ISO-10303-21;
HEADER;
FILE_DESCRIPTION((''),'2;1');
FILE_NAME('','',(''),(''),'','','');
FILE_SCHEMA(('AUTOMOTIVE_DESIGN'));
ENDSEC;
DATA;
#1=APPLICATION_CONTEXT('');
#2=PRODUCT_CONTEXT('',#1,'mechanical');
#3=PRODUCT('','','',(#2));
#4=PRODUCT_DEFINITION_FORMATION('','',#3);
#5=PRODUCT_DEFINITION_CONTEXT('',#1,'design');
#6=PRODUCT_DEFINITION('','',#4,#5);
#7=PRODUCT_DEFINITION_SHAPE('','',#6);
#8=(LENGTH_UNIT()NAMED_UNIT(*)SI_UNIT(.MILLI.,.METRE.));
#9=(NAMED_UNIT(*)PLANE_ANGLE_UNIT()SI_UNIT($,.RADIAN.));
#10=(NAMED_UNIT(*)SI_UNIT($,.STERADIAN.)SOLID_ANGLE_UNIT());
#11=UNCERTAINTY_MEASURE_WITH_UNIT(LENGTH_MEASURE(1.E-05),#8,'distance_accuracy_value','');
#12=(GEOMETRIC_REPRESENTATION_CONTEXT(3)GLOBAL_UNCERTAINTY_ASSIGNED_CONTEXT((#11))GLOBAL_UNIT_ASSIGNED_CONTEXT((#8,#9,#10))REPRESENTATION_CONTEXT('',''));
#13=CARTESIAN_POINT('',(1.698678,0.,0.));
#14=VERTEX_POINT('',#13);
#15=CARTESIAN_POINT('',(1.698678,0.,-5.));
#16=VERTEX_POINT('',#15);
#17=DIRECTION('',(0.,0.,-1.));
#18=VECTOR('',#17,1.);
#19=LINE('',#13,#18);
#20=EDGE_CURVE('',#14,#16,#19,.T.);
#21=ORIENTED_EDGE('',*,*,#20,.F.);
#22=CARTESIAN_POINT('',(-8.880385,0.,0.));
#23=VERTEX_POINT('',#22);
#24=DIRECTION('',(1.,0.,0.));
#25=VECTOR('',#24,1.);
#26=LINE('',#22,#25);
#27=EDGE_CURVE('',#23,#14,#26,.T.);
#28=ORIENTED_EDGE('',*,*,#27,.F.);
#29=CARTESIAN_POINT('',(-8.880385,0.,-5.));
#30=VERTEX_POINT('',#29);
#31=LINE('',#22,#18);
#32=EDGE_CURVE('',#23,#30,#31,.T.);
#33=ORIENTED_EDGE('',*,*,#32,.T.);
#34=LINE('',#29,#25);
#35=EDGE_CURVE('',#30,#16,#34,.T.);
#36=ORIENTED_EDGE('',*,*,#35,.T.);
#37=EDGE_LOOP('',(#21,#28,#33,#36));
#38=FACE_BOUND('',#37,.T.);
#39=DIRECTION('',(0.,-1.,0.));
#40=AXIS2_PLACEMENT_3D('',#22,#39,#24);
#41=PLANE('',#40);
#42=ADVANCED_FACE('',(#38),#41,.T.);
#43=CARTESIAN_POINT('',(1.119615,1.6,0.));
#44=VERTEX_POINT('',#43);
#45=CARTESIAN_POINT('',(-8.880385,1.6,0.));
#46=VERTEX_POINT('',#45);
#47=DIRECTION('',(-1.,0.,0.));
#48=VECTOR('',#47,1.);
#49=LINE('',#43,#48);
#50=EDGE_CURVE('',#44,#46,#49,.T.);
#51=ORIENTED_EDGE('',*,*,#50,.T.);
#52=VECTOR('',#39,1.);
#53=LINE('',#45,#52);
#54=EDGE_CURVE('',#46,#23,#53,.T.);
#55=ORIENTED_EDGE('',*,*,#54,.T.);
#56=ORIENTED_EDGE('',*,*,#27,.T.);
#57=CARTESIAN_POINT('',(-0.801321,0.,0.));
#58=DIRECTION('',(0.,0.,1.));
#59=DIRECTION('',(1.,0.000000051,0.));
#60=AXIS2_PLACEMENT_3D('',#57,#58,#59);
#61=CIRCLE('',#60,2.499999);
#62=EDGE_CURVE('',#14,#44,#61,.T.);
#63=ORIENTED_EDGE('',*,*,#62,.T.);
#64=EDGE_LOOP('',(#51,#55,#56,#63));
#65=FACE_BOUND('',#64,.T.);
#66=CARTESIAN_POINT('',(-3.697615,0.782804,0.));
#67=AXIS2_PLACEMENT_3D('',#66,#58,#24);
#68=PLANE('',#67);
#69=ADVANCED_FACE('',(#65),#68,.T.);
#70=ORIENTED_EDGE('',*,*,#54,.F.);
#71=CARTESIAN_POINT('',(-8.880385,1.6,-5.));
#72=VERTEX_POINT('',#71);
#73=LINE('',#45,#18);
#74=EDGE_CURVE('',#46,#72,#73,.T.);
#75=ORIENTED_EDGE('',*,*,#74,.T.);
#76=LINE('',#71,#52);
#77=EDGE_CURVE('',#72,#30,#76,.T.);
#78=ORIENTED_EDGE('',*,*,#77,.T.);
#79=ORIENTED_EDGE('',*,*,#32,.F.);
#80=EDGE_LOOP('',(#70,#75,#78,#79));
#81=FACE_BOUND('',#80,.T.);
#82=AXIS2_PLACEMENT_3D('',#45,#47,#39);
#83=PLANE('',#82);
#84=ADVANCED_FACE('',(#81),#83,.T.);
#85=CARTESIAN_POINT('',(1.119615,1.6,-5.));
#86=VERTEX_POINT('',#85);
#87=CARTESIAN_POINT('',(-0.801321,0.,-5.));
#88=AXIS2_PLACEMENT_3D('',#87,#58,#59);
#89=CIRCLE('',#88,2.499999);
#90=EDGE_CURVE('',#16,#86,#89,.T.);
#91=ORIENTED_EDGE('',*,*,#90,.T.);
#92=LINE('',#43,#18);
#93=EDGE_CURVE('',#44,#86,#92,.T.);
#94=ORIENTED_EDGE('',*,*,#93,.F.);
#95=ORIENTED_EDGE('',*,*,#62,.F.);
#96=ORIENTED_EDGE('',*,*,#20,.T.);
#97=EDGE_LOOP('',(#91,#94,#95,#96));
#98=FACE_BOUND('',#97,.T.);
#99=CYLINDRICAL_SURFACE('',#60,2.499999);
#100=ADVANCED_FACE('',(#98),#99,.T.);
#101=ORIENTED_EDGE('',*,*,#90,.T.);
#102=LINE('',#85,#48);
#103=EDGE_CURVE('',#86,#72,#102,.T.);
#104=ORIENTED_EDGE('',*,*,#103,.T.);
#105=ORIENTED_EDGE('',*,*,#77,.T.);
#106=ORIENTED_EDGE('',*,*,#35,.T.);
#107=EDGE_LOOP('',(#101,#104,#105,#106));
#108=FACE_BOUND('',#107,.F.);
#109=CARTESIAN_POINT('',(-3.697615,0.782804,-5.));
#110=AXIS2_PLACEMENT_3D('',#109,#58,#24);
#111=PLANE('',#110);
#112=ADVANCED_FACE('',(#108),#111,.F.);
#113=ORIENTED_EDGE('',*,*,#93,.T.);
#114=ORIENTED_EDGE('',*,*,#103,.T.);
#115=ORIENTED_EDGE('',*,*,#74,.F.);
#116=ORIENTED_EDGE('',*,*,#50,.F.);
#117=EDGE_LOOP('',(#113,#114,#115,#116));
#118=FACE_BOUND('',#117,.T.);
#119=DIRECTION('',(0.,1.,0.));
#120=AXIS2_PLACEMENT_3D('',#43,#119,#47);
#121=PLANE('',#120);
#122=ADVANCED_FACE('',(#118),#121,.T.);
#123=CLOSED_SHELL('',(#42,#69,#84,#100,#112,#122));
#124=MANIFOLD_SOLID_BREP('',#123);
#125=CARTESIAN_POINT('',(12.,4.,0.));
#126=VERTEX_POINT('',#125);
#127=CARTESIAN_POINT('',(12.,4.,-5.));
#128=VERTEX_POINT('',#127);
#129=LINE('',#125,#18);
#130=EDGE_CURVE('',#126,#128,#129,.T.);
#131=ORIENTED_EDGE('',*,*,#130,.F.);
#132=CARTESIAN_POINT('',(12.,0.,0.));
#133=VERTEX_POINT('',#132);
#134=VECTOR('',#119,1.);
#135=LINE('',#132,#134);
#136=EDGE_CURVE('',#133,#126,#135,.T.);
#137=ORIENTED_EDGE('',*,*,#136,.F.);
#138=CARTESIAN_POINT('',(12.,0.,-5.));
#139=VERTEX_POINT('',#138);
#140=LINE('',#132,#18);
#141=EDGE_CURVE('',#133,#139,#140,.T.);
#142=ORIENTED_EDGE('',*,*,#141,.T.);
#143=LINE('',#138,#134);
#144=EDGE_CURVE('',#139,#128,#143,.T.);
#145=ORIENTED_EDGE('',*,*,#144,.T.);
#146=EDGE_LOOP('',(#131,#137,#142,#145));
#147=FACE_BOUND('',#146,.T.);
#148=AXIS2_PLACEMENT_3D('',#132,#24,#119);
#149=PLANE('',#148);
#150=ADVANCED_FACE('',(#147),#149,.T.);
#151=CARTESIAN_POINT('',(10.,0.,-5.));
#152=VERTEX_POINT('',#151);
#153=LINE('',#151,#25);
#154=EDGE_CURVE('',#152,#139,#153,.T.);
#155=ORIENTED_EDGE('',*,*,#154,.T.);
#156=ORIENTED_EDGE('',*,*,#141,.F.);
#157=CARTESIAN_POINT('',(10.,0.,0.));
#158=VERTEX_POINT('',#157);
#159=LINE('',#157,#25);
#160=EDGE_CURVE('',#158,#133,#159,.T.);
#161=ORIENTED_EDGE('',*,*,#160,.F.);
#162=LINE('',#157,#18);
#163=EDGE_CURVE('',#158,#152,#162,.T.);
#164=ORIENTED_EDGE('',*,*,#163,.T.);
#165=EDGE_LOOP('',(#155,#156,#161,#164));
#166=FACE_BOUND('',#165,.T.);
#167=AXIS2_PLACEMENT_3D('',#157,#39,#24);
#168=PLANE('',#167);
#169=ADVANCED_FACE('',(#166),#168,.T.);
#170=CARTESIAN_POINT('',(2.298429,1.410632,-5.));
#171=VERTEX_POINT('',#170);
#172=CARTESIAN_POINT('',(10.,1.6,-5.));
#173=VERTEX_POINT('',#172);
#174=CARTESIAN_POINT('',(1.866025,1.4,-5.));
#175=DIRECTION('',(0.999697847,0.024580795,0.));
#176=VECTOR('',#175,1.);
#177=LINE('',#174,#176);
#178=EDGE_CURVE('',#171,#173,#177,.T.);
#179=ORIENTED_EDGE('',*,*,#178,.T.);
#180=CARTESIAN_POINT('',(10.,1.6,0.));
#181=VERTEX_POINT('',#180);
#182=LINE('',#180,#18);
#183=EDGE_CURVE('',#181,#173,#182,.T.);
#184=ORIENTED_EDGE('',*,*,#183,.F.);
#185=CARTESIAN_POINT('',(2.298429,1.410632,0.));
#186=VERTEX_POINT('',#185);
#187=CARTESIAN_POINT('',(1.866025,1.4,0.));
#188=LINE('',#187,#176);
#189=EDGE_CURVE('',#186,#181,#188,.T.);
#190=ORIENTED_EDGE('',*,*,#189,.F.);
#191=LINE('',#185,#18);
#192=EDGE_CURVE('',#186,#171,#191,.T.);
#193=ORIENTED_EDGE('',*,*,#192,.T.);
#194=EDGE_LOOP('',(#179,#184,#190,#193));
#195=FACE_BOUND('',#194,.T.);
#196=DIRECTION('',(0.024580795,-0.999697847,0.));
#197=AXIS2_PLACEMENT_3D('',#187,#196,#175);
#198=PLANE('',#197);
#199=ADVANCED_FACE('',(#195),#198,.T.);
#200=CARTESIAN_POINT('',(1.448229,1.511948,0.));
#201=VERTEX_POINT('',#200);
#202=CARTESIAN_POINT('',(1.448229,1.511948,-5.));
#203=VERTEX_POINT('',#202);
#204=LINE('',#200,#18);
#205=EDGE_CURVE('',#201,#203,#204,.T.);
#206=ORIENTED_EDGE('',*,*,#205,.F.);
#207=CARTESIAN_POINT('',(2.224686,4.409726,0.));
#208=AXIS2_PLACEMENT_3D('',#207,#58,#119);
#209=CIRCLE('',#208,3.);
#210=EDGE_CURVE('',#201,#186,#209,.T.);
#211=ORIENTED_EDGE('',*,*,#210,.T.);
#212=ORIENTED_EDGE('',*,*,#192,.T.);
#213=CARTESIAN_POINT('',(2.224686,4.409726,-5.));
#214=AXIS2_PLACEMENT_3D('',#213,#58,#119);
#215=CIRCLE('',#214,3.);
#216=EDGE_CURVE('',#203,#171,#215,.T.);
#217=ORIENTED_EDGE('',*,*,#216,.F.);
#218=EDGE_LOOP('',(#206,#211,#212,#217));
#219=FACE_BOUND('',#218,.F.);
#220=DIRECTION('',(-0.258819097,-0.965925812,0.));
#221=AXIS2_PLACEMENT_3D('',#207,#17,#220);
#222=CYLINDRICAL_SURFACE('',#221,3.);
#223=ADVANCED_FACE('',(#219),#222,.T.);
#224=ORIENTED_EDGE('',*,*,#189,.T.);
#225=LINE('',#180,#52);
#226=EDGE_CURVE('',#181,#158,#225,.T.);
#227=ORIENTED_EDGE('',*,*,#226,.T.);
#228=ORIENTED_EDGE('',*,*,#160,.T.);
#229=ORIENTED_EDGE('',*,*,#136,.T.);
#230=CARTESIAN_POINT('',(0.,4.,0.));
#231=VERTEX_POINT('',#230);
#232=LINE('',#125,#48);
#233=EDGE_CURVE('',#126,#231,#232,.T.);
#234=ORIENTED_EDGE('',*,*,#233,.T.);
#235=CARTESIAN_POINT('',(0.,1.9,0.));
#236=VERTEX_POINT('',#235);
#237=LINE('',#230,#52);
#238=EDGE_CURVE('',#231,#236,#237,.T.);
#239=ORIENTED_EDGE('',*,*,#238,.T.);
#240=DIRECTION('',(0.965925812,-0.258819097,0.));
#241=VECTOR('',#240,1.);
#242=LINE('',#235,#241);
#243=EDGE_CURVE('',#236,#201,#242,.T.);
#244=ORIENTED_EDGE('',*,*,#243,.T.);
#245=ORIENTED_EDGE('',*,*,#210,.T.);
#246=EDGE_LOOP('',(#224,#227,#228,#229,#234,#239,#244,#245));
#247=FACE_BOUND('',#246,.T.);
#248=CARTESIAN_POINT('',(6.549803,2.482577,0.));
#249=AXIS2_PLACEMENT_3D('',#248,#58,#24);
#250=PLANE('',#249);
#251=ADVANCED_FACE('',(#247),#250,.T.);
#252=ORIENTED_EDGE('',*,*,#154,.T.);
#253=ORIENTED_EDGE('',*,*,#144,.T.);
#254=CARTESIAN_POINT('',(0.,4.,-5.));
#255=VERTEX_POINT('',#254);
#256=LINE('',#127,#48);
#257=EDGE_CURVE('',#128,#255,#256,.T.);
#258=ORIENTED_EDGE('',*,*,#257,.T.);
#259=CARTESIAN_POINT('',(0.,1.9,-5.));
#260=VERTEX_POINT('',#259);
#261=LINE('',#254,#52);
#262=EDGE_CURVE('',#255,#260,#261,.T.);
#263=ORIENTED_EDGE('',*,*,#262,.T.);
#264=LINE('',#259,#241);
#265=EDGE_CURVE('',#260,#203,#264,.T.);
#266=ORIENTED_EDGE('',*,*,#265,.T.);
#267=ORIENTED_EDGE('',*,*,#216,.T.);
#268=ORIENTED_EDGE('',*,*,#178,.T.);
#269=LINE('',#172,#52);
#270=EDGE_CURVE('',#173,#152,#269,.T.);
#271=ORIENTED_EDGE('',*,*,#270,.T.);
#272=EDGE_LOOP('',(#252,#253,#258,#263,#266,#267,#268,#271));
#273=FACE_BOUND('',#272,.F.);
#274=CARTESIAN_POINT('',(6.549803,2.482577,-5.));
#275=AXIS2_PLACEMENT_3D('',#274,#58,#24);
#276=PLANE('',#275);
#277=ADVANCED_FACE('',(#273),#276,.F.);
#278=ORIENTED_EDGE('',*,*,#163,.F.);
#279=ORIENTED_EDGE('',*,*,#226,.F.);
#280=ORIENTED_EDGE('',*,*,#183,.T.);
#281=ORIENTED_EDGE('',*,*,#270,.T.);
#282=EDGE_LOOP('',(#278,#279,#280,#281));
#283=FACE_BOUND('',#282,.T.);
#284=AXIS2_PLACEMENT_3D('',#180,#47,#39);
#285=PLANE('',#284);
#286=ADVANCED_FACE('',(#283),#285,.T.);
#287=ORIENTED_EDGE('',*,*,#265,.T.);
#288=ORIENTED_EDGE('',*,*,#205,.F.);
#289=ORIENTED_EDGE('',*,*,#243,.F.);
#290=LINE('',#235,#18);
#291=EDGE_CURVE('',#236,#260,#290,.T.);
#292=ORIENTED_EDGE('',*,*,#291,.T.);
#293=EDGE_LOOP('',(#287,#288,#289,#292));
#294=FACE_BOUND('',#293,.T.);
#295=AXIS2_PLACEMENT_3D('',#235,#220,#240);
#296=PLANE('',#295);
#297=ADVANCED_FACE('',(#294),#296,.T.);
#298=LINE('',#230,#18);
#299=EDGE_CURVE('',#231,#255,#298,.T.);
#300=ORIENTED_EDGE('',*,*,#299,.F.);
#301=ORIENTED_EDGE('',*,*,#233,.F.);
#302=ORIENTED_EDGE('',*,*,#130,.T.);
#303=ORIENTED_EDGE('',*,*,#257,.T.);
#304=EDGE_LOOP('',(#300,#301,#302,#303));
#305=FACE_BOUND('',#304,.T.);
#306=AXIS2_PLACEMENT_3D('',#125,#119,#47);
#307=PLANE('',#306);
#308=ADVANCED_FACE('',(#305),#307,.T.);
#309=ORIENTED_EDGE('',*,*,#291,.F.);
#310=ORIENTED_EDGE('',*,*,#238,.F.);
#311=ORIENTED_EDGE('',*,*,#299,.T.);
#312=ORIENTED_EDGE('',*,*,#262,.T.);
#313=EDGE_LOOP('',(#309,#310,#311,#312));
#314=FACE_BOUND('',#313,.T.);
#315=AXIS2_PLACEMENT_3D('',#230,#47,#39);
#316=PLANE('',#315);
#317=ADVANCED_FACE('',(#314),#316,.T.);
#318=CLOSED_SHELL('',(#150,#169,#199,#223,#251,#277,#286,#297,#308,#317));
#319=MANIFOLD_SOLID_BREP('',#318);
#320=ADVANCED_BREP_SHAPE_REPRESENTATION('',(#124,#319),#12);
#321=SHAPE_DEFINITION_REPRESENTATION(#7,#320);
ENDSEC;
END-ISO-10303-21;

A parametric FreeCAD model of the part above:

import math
import FreeCAD as App
import Part
import Sketcher

V = App.Vector
Q = App.Units.Quantity


def edges_at(feature, points):
    """Names of the edges that pass closest to the given points."""
    edges = feature.Shape.Edges
    near = lambda p: min(range(len(edges)), key=lambda i: edges[i].distToShape(Part.Vertex(*p))[0])
    return sorted({f"Edge{near(p) + 1}" for p in points})

doc = App.newDocument("Part")
body = doc.addObject("PartDesign::Body", "Body")

# Sketch on XY plane
sketch1 = body.newObject("Sketcher::SketchObject", "Sketch")
sketch1.AttachmentSupport = (doc.getObject("XY_Plane"), [""])
sketch1.MapMode = "FlatFace"
sketch1.addGeometry([
    Part.LineSegment(V(12, 4, 0), V(0, 4, 0)),  # 0
    Part.LineSegment(V(0, 4, 0), V(0, 1.9, 0)),  # 1
    Part.LineSegment(V(0, 1.9, 0), V(1.866025, 1.4, 0)),  # 2
    Part.LineSegment(V(1.866025, 1.4, 0), V(10, 1.6, 0)),  # 3
    Part.LineSegment(V(10, 1.6, 0), V(10, 0, 0)),  # 4
    Part.LineSegment(V(10, 0, 0), V(12, 0, 0)),  # 5
    Part.LineSegment(V(12, 0, 0), V(12, 4, 0)),  # 6
], False)
sketch1.addConstraint([
    Sketcher.Constraint("Coincident", 0, 2, 1, 1),
    Sketcher.Constraint("Coincident", 1, 2, 2, 1),
    Sketcher.Constraint("Coincident", 2, 2, 3, 1),
    Sketcher.Constraint("Coincident", 3, 2, 4, 1),
    Sketcher.Constraint("Coincident", 4, 2, 5, 1),
    Sketcher.Constraint("Coincident", 5, 2, 6, 1),
    Sketcher.Constraint("Coincident", 6, 2, 0, 1),
    Sketcher.Constraint("Horizontal", 0),
    Sketcher.Constraint("Vertical", 1),
    Sketcher.Constraint("Vertical", 4),
    Sketcher.Constraint("Horizontal", 5),
    Sketcher.Constraint("Vertical", 6),
    Sketcher.Constraint("PointOnObject", 0, 2, -2),
    Sketcher.Constraint("PointOnObject", 4, 2, -1),
    Sketcher.Constraint("DistanceX", 0, 2, 0, 1, 12.0),
    Sketcher.Constraint("DistanceX", 5, 1, 5, 2, 2.0),
    Sketcher.Constraint("DistanceY", 6, 1, 6, 2, 4.0),
    Sketcher.Constraint("Angle", 2, Q("-15.000003 deg")),
    Sketcher.Constraint("DistanceY", 1, 2, 1, 1, 2.1),
    Sketcher.Constraint("DistanceY", 4, 2, 4, 1, 1.6),
    Sketcher.Constraint("DistanceY", -1, 1, 2, 2, 1.4),
])
pad1 = body.newObject("PartDesign::Pad", "Pad")
pad1.Profile = sketch1
pad1.Length = 5
pad1.Reversed = True
doc.recompute()

fillet = body.newObject("PartDesign::Fillet", "Fillet")
fillet.Base = (pad1, edges_at(pad1, [(1.866, 1.4, -2.5)]))
fillet.Radius = 3
body2 = doc.addObject("PartDesign::Body", "Body001")

# Sketch on XY plane
sketch2 = body2.newObject("Sketcher::SketchObject", "Sketch001")
sketch2.AttachmentSupport = (doc.getObject("XY_Plane001"), [""])
sketch2.MapMode = "FlatFace"
sketch2.addGeometry([
    Part.ArcOfCircle(Part.Circle(V(-0.801321, 0, 0), V(0, 0, 1), 2.499999), math.radians(0.000003), math.radians(39.791834)),
    Part.LineSegment(V(1.119615, 1.6, 0), V(-8.880385, 1.6, 0)),
    Part.LineSegment(V(-8.880385, 1.6, 0), V(-8.880385, 0, 0)),
    Part.LineSegment(V(-8.880385, 0, 0), V(1.698678, 0, 0)),
], False)
sketch2.addConstraint([
    Sketcher.Constraint("Coincident", 0, 2, 1, 1),
    Sketcher.Constraint("Coincident", 1, 2, 2, 1),
    Sketcher.Constraint("Coincident", 2, 2, 3, 1),
    Sketcher.Constraint("Coincident", 3, 2, 0, 1),
    Sketcher.Constraint("Horizontal", 1),
    Sketcher.Constraint("Vertical", 2),
    Sketcher.Constraint("Horizontal", 3),
    Sketcher.Constraint("PointOnObject", 0, 3, -1),
    Sketcher.Constraint("PointOnObject", 2, 2, -1),
    Sketcher.Constraint("Radius", 0, 2.499999),
    Sketcher.Constraint("DistanceX", 1, 2, 1, 1, 10.0),
    Sketcher.Constraint("DistanceY", 2, 2, 2, 1, 1.6),
    Sketcher.Constraint("DistanceX", 0, 3, -1, 1, 0.801321),
])
pad2 = body2.newObject("PartDesign::Pad", "Pad001")
pad2.Profile = sketch2
pad2.Length = 5
pad2.Reversed = True

doc.recompute()
